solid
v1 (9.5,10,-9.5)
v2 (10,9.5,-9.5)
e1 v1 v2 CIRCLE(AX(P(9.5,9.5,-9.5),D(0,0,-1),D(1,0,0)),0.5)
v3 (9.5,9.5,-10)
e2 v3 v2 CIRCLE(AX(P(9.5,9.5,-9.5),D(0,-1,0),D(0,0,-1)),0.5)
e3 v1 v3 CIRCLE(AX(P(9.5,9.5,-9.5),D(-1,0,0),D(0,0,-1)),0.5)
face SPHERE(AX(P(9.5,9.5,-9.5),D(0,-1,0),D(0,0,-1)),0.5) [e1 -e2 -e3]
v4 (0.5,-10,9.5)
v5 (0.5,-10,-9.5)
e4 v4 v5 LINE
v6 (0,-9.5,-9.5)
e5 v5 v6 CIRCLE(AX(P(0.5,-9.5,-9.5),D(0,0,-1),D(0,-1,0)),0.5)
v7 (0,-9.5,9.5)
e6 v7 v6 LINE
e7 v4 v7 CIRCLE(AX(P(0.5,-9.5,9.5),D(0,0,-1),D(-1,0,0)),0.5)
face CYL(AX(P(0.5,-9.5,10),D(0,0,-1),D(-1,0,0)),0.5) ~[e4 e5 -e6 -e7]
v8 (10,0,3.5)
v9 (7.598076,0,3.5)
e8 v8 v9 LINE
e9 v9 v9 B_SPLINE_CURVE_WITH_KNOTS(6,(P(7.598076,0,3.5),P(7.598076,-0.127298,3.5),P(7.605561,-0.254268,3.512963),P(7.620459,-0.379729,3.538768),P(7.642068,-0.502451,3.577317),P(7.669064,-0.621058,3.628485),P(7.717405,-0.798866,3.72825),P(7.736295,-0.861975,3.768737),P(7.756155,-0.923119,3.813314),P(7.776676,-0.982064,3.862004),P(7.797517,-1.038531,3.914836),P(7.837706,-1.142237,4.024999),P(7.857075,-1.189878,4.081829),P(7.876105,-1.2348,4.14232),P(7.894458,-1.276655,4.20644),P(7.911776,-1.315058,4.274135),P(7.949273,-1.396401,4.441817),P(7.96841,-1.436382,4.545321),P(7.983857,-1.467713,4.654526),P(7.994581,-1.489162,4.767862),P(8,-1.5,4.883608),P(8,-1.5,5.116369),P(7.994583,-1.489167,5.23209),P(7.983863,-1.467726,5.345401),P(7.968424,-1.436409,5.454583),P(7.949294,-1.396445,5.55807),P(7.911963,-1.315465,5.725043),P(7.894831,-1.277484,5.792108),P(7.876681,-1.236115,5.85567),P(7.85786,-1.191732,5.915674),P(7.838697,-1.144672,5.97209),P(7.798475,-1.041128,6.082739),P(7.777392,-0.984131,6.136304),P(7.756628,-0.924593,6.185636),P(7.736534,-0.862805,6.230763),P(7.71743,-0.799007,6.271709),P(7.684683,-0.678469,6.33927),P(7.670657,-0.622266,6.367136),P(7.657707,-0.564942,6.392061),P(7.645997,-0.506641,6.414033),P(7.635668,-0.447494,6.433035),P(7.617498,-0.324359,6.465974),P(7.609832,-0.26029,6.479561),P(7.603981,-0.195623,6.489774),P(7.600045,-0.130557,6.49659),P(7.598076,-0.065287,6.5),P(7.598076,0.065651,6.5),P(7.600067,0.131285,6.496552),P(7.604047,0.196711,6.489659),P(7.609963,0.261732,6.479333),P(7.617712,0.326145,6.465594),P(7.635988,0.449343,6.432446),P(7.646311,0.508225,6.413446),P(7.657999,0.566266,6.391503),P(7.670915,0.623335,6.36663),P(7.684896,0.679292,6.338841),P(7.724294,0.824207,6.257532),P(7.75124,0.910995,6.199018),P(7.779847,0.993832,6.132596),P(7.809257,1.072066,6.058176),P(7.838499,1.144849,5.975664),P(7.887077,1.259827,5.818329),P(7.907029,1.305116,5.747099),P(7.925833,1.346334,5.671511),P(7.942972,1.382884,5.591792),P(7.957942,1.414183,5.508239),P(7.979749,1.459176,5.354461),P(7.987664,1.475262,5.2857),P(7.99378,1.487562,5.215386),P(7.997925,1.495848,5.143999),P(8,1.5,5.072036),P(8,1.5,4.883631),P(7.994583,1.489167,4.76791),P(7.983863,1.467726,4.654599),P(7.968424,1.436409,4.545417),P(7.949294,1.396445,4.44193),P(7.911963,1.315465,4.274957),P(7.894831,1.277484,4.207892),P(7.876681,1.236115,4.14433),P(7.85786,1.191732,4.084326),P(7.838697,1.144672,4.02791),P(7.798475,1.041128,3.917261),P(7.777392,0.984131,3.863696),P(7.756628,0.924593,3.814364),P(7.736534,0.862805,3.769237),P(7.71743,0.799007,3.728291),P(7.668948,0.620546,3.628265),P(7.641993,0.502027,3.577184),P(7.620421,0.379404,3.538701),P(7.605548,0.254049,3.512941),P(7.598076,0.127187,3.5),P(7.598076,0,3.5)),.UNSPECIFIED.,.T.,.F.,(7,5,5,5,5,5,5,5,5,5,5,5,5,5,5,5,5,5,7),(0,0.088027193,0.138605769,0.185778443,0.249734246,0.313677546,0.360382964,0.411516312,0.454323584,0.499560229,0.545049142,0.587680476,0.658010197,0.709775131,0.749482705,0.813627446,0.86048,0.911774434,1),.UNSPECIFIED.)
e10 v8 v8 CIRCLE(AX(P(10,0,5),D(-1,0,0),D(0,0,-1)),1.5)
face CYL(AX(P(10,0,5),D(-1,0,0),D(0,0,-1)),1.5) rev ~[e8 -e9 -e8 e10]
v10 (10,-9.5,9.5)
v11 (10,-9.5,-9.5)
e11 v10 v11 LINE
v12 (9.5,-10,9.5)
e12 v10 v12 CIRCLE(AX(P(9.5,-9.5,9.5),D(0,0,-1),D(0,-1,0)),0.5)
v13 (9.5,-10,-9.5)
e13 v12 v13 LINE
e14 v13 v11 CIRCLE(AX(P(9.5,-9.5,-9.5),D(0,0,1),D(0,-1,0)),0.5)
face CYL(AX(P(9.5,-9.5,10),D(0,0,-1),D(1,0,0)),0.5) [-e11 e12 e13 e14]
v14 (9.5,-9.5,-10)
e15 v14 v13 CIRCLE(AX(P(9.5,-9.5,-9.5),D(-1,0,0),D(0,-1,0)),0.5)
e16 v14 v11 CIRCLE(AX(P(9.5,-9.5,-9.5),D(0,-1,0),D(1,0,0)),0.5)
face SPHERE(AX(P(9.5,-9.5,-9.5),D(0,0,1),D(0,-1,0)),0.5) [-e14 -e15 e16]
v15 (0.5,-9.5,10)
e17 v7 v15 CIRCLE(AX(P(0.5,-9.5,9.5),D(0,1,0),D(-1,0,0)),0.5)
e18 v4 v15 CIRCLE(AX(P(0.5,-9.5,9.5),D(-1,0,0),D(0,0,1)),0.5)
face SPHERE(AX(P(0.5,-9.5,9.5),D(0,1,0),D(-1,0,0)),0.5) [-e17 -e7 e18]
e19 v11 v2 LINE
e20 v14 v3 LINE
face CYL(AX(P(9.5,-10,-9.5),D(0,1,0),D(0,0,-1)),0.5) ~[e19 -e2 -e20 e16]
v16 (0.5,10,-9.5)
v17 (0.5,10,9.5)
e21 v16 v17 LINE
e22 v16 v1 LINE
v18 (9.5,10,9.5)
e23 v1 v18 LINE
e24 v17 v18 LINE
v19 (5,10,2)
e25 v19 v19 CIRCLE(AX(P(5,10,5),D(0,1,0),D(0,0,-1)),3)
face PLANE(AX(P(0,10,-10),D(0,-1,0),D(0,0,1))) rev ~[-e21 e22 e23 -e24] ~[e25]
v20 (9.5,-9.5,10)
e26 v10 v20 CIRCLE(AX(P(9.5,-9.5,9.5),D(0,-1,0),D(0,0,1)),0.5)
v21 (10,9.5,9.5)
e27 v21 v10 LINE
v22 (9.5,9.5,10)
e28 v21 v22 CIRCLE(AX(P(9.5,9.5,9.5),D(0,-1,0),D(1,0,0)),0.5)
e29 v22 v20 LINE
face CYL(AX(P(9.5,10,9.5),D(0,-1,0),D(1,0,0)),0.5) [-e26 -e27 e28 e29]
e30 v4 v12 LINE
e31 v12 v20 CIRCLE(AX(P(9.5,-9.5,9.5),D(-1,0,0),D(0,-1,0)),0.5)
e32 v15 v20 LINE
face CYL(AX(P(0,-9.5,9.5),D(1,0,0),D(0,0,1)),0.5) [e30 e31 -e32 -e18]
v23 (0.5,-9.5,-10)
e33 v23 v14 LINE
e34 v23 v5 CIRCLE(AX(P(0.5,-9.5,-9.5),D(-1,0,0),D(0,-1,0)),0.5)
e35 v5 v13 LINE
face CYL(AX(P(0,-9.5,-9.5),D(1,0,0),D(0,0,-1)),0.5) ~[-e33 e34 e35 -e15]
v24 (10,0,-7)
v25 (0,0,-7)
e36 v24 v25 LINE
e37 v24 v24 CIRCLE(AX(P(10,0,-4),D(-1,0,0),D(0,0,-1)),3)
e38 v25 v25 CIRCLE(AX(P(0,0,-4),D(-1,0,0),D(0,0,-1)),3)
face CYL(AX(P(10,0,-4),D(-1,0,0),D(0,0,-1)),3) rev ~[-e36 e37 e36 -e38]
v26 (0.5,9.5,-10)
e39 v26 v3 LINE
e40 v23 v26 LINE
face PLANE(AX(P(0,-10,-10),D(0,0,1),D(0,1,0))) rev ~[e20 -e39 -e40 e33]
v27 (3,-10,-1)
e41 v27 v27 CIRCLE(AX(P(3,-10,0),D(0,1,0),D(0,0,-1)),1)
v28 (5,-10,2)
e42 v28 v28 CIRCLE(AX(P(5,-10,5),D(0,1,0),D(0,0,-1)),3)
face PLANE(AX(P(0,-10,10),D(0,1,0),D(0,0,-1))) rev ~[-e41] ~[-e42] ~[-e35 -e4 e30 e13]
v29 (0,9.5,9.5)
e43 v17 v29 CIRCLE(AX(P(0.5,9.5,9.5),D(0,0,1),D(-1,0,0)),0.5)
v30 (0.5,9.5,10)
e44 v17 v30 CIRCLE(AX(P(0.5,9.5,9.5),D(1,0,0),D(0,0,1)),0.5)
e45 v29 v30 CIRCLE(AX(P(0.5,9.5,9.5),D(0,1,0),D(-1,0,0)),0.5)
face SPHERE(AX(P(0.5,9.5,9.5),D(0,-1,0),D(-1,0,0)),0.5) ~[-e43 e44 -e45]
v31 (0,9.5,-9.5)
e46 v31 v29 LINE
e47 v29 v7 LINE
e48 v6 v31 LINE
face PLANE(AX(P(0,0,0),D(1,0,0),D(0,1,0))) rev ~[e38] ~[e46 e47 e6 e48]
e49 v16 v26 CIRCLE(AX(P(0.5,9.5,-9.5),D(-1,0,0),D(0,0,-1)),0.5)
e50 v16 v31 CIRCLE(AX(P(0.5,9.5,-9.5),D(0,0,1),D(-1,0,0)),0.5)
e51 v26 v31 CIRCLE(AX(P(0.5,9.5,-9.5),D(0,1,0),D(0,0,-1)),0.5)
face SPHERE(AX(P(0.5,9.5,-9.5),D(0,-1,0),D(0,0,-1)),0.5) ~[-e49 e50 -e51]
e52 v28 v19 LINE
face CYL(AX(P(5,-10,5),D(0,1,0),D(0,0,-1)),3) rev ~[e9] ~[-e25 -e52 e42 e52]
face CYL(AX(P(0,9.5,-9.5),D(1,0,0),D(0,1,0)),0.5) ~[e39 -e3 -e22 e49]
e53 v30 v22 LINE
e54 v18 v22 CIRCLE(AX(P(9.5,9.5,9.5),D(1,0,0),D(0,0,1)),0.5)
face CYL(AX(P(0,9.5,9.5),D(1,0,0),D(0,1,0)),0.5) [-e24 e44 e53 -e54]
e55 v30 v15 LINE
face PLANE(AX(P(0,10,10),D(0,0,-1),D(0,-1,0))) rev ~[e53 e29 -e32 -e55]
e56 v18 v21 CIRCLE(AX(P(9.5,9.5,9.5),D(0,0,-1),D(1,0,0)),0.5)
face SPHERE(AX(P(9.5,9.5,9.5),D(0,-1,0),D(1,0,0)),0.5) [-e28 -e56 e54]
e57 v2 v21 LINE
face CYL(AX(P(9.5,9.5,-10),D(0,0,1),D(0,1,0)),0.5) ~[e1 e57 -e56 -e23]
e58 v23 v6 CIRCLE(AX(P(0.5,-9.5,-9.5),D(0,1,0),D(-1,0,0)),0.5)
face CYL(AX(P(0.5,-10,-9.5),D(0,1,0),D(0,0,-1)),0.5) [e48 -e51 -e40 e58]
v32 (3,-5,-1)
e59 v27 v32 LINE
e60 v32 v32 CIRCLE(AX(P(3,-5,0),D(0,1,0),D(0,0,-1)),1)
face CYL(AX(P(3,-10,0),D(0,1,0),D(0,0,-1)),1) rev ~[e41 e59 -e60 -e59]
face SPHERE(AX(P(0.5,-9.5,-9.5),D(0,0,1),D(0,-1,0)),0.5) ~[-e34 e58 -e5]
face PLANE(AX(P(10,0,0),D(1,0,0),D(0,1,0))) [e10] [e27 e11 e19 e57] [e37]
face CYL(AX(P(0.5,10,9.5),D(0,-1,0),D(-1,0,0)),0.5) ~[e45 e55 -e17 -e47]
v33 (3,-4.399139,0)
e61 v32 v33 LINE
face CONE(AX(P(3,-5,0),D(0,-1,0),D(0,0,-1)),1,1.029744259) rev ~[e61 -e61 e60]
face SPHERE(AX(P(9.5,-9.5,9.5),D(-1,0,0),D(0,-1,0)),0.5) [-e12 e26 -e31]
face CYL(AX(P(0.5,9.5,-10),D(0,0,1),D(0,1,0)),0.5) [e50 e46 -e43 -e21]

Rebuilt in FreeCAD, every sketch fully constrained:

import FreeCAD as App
import Part
import Sketcher
from FreeCAD import Vector
Q = App.Units.Quantity


def edges_at(feature, points):
    """Names of the edges that pass closest to the given points."""
    edges = feature.Shape.Edges
    near = lambda p: min(range(len(edges)), key=lambda i: edges[i].distToShape(Part.Vertex(*p))[0])
    return sorted({f"Edge{near(p) + 1}" for p in points})

doc = App.newDocument("Part")
body = doc.addObject("PartDesign::Body", "Body")

sketch1 = body.newObject("Sketcher::SketchObject", "Sketch")
sketch1.AttachmentSupport = (doc.getObject("YZ_Plane"), [""])
sketch1.MapMode = "FlatFace"
sketch1.addGeometry(Part.LineSegment(Vector(10, -10, 0), Vector(10, 10, 0)), False)
sketch1.addGeometry(Part.LineSegment(Vector(10, 10, 0), Vector(-10, 10, 0)), False)
sketch1.addGeometry(Part.LineSegment(Vector(-10, 10, 0), Vector(-10, -10, 0)), False)
sketch1.addGeometry(Part.LineSegment(Vector(-10, -10, 0), Vector(10, -10, 0)), False)
sketch1.addConstraint(Sketcher.Constraint("Coincident", 0, 2, 1, 1))
sketch1.addConstraint(Sketcher.Constraint("Coincident", 1, 2, 2, 1))
sketch1.addConstraint(Sketcher.Constraint("Coincident", 2, 2, 3, 1))
sketch1.addConstraint(Sketcher.Constraint("Coincident", 3, 2, 0, 1))
sketch1.addConstraint(Sketcher.Constraint("Vertical", 0))
sketch1.addConstraint(Sketcher.Constraint("Horizontal", 1))
sketch1.addConstraint(Sketcher.Constraint("Vertical", 2))
sketch1.addConstraint(Sketcher.Constraint("Horizontal", 3))
sketch1.addConstraint(Sketcher.Constraint("Symmetric", 0, 2, 2, 2, -1, 1))
sketch1.addConstraint(Sketcher.Constraint("Equal", 3, 0))
sketch1.addConstraint(Sketcher.Constraint("DistanceX", 1, 2, 1, 1, Q("20 mm")))
pad1 = body.newObject("PartDesign::Pad", "Pad")
pad1.Profile = sketch1
pad1.Length = 10

sketch2 = body.newObject("Sketcher::SketchObject", "Sketch001")
sketch2.AttachmentSupport = (doc.getObject("YZ_Plane"), [""])
sketch2.MapMode = "FlatFace"
sketch2.AttachmentOffset = App.Placement(Vector(0, 0, 10), App.Rotation())
sketch2.addGeometry(Part.Circle(Vector(0, -4, 0), Vector(0, 0, 1), 3), False)
sketch2.addConstraint(Sketcher.Constraint("PointOnObject", 0, 3, -2))
sketch2.addConstraint(Sketcher.Constraint("Diameter", 0, Q("6 mm")))
sketch2.addConstraint(Sketcher.Constraint("DistanceY", 0, 3, -1, 1, Q("4 mm")))
doc.recompute()
hole = body.newObject("PartDesign::Hole", "Hole")
hole.Profile = sketch2
hole.ThreadType = "None"
hole.Diameter = 6
hole.DepthType = "ThroughAll"

sketch3 = body.newObject("Sketcher::SketchObject", "Sketch002")
sketch3.AttachmentSupport = (doc.getObject("XZ_Plane"), [""])
sketch3.MapMode = "FlatFace"
sketch3.AttachmentOffset = App.Placement(Vector(0, 0, 10), App.Rotation())
sketch3.addGeometry(Part.Circle(Vector(5, 5, 0), Vector(0, 0, 1), 3), False)
sketch3.addConstraint(Sketcher.Constraint("Diameter", 0, Q("6 mm")))
sketch3.addConstraint(Sketcher.Constraint("DistanceX", -1, 1, 0, 3, Q("5 mm")))
sketch3.addConstraint(Sketcher.Constraint("DistanceY", -1, 1, 0, 3, Q("5 mm")))
doc.recompute()
hole2 = body.newObject("PartDesign::Hole", "Hole001")
hole2.Profile = sketch3
hole2.ThreadType = "None"
hole2.Diameter = 6
hole2.DepthType = "ThroughAll"

sketch4 = body.newObject("Sketcher::SketchObject", "Sketch003")
sketch4.AttachmentSupport = (doc.getObject("XZ_Plane"), [""])
sketch4.MapMode = "FlatFace"
sketch4.AttachmentOffset = App.Placement(Vector(0, 0, 10), App.Rotation())
sketch4.addGeometry(Part.Circle(Vector(3, 0, 0), Vector(0, 0, 1), 1), False)
sketch4.addConstraint(Sketcher.Constraint("PointOnObject", 0, 3, -1))
sketch4.addConstraint(Sketcher.Constraint("Diameter", 0, Q("2 mm")))
sketch4.addConstraint(Sketcher.Constraint("DistanceX", -1, 1, 0, 3, Q("3 mm")))
doc.recompute()
hole3 = body.newObject("PartDesign::Hole", "Hole002")
hole3.Profile = sketch4
hole3.ThreadType = "None"
hole3.Diameter = 2
hole3.DepthType = "Dimension"
hole3.Depth = 5
hole3.DrillPoint = "Angled"
hole3.DrillPointAngle = 118

sketch5 = body.newObject("Sketcher::SketchObject", "Sketch004")
sketch5.AttachmentSupport = (doc.getObject("YZ_Plane"), [""])
sketch5.MapMode = "FlatFace"
sketch5.AttachmentOffset = App.Placement(Vector(0, 0, 10), App.Rotation())
sketch5.addGeometry(Part.Circle(Vector(0, 5, 0), Vector(0, 0, 1), 1.5), False)
sketch5.addConstraint(Sketcher.Constraint("PointOnObject", 0, 3, -2))
sketch5.addConstraint(Sketcher.Constraint("Diameter", 0, Q("3 mm")))
sketch5.addConstraint(Sketcher.Constraint("DistanceY", -1, 1, 0, 3, Q("5 mm")))
doc.recompute()
hole4 = body.newObject("PartDesign::Hole", "Hole003")
hole4.Profile = sketch5
hole4.ThreadType = "None"
hole4.Diameter = 3
hole4.DepthType = "Dimension"
hole4.Depth = 5
hole4.DrillPoint = "Angled"
hole4.DrillPointAngle = 118
doc.recompute()

fillet = body.newObject("PartDesign::Fillet", "Fillet")
fillet.Base = (hole4, edges_at(hole4, [
    (0, 0, 10),
    (0, -10, 0),
    (5, -10, 10),
    (10, -10, 0),
    (10, 0, 10),
    (5, -10, -10),
    (0, 0, -10),
    (10, 0, -10),
    (5, 10, -10),
    (0, 10, 0),
    (10, 10, 0),
    (5, 10, 10),
]))
fillet.Radius = 0.5

doc.recompute()
